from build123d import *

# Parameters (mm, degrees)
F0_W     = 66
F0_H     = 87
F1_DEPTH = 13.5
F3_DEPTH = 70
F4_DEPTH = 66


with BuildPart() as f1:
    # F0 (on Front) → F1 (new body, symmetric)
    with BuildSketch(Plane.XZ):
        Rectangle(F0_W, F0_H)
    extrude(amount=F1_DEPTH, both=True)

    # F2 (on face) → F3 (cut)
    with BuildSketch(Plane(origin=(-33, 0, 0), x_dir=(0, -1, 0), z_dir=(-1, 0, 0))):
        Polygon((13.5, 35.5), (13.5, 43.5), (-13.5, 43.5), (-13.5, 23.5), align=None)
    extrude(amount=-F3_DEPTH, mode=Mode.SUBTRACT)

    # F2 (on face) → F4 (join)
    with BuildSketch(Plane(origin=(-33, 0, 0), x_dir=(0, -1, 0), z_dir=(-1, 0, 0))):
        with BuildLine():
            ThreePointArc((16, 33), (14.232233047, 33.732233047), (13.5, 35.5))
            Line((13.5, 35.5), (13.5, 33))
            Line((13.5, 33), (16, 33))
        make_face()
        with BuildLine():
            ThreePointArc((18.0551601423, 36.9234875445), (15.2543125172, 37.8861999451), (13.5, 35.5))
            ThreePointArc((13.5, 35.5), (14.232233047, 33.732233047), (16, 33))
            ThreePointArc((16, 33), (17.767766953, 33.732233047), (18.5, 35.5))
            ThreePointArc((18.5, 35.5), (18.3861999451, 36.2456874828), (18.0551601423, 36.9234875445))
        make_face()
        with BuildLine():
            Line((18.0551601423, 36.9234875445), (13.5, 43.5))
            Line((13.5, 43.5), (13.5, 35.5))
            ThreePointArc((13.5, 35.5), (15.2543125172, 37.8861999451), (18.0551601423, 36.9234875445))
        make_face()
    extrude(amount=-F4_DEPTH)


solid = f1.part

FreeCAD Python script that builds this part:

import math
import FreeCAD as App
import Part
import Sketcher
from FreeCAD import Vector
Q = App.Units.Quantity

doc = App.newDocument("Part")
body = doc.addObject("PartDesign::Body", "Body")

# Sketch on XZ plane
sketch1 = doc.addObject("Sketcher::SketchObject", "Sketch")
body.addObject(sketch1)
sketch1.AttachmentSupport = (doc.XZ_Plane, [""])
sketch1.MapMode = "FlatFace"
sketch1.addGeometry([
    Part.LineSegment(Vector(-33, 44, 0), Vector(-33, -44, 0)),
    Part.LineSegment(Vector(-33, -44, 0), Vector(33, -44, 0)),
    Part.LineSegment(Vector(33, -44, 0), Vector(33, 44, 0)),
    Part.LineSegment(Vector(33, 44, 0), Vector(-33, 44, 0)),
], False)
sketch1.addConstraint([
    Sketcher.Constraint("Coincident", 0, 2, 1, 1),
    Sketcher.Constraint("Coincident", 1, 2, 2, 1),
    Sketcher.Constraint("Coincident", 2, 2, 3, 1),
    Sketcher.Constraint("Coincident", 3, 2, 0, 1),
    Sketcher.Constraint("Vertical", 0),
    Sketcher.Constraint("Horizontal", 1),
    Sketcher.Constraint("Vertical", 2),
    Sketcher.Constraint("Horizontal", 3),
    Sketcher.Constraint("Symmetric", 0, 2, 2, 2, -1, 1),
    Sketcher.Constraint("DistanceX", 1, 1, 1, 2, Q("66 mm")),
    Sketcher.Constraint("DistanceY", 0, 2, 0, 1, Q("87 mm")),
])
pad1 = doc.addObject("PartDesign::Pad", "Pad")
body.addObject(pad1)
pad1.Profile = sketch1
pad1.Length = 27
pad1.Midplane = True

# Sketch on YZ plane
sketch2 = doc.addObject("Sketcher::SketchObject", "Sketch001")
body.addObject(sketch2)
sketch2.AttachmentSupport = (doc.YZ_Plane, [""])
sketch2.MapMode = "FlatFace"
sketch2.AttachmentOffset = App.Placement(Vector(0, 0, -33), App.Rotation())
sketch2.addGeometry([
    Part.LineSegment(Vector(-14, 36, 0), Vector(-14, 44, 0)),
    Part.LineSegment(Vector(-14, 44, 0), Vector(14, 44, 0)),
    Part.LineSegment(Vector(14, 44, 0), Vector(14, 24, 0)),
    Part.LineSegment(Vector(14, 24, 0), Vector(-14, 36, 0)),
], False)
sketch2.addConstraint([
    Sketcher.Constraint("Coincident", 0, 2, 1, 1),
    Sketcher.Constraint("Coincident", 1, 2, 2, 1),
    Sketcher.Constraint("Coincident", 2, 2, 3, 1),
    Sketcher.Constraint("Coincident", 3, 2, 0, 1),
    Sketcher.Constraint("Vertical", 0),
    Sketcher.Constraint("Horizontal", 1),
    Sketcher.Constraint("Vertical", 2),
    Sketcher.Constraint("DistanceX", 1, 1, 1, 2, Q("27 mm")),
    Sketcher.Constraint("DistanceY", 0, 1, 0, 2, Q("8 mm")),
    Sketcher.Constraint("DistanceY", 2, 2, 2, 1, Q("20 mm")),
    Sketcher.Constraint("DistanceX", 0, 2, -1, 1, Q("13.5 mm")),
    Sketcher.Constraint("DistanceY", -1, 1, 0, 2, Q("43.5 mm")),
])
pocket1 = doc.addObject("PartDesign::Pocket", "Pocket")
body.addObject(pocket1)
pocket1.Profile = sketch2
pocket1.Length = 70
pocket1.Reversed = True

# Sketch on YZ plane
sketch3 = doc.addObject("Sketcher::SketchObject", "Sketch002")
body.addObject(sketch3)
sketch3.AttachmentSupport = (doc.YZ_Plane, [""])
sketch3.MapMode = "FlatFace"
sketch3.AttachmentOffset = App.Placement(Vector(0, 0, -33), App.Rotation())
sketch3.addGeometry([
    Part.LineSegment(Vector(-13.5, 33, 0), Vector(-16, 33, 0)),  # 0
    Part.ArcOfCircle(Part.Circle(Vector(-16, 35.5, 0), Vector(0, 0, 1), 2.5), math.radians(180), math.radians(270)),  # 1
    Part.ArcOfCircle(Part.Circle(Vector(-16, 35.5, 0), Vector(0, 0, 1), 2.5), math.radians(145), math.radians(180)),  # 2
    Part.LineSegment(Vector(-18.1, 36.9, 0), Vector(-13.5, 43.5, 0)),  # 3
    Part.LineSegment(Vector(-13.5, 43.5, 0), Vector(-13.5, 33, 0)),  # 4
], False)
sketch3.addConstraint([
    Sketcher.Constraint("Tangent", 0, 2, 1, 2),
    Sketcher.Constraint("Tangent", 1, 1, 2, 2),
    Sketcher.Constraint("Tangent", 2, 1, 3, 1),
    Sketcher.Constraint("Coincident", 3, 2, 4, 1),
    Sketcher.Constraint("Coincident", 4, 2, 0, 1),
    Sketcher.Constraint("Horizontal", 0),
    Sketcher.Constraint("Vertical", 4),
    Sketcher.Constraint("Equal", 1, 2),
    Sketcher.Constraint("Horizontal", 2, 3, 1, 1),
    Sketcher.Constraint("Radius", 1, Q("2.5 mm")),
    Sketcher.Constraint("Distance", 3, Q("8 mm")),
    Sketcher.Constraint("DistanceX", 0, 2, 0, 1, Q("2.5 mm")),
    Sketcher.Constraint("DistanceX", 1, 3, -1, 1, Q("16 mm")),
    Sketcher.Constraint("DistanceY", -1, 1, 0, 2, Q("33 mm")),
])
pad2 = doc.addObject("PartDesign::Pad", "Pad001")
body.addObject(pad2)
pad2.Profile = sketch3
pad2.Length = 66

doc.recompute()
